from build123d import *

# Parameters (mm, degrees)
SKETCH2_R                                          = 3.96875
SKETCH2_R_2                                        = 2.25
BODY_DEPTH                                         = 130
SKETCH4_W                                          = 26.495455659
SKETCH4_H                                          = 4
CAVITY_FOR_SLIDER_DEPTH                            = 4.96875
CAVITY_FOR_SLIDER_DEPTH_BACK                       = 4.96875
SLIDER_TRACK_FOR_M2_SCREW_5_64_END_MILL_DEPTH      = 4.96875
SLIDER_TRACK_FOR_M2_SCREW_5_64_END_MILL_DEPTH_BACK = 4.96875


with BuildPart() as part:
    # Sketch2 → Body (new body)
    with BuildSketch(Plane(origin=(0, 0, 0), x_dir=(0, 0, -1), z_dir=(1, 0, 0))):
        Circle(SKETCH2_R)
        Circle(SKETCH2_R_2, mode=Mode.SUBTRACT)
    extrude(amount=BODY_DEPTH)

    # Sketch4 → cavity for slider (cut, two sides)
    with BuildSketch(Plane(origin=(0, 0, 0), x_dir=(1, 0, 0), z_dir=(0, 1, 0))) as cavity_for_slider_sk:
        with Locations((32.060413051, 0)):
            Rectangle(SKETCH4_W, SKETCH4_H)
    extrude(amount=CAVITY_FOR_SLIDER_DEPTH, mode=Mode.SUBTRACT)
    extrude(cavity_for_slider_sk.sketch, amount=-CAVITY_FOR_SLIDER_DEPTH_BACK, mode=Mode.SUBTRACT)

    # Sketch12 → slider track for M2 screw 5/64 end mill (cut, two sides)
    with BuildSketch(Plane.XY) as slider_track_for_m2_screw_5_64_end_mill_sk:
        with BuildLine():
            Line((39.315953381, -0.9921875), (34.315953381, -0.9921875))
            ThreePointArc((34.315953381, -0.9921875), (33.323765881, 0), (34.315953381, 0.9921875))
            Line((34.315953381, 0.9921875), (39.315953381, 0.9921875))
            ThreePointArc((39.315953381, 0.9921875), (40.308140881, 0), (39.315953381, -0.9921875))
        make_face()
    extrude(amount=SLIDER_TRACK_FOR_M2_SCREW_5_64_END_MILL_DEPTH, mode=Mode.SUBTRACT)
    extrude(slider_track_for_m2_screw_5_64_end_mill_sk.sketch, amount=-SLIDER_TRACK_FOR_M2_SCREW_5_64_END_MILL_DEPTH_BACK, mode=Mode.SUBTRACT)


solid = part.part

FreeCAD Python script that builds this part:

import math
import FreeCAD as App
import Part
import Sketcher


def add_polygon(sketch, points):
    """Adds a closed chain of lines whose ends are joined by coincident constraints."""
    first, n = sketch.GeometryCount, len(points)
    for a, b in zip(points, points[1:] + points[:1]):
        sketch.addGeometry(Part.LineSegment(App.Vector(*a, 0), App.Vector(*b, 0)), False)
    for i in range(n):
        sketch.addConstraint(Sketcher.Constraint("Coincident", first + i, 2, first + (i + 1) % n, 1))

doc = App.newDocument("Part")
params = doc.addObject("Spreadsheet::Sheet", "Params")
for row, (alias, value) in enumerate([
    ("sketch1_diameter", "4.5 mm"),
    ("pad1_length", "130 mm"),
    ("sketch2_height", "4 mm"),
    ("sketch3_width", "5 mm"),
], start=1):
    params.set(f"A{row}", alias)
    params.set(f"B{row}", "=" + value)
    params.setAlias(f"B{row}", alias)

body = doc.addObject("PartDesign::Body", "Body")

# Sketch on YZ plane
sketch1 = body.newObject("Sketcher::SketchObject", "Sketch")
sketch1.AttachmentSupport = (doc.getObject("YZ_Plane"), [""])
sketch1.MapMode = "FlatFace"
sketch1.addGeometry([
    Part.Circle(App.Vector(0, 0, 0), App.Vector(0, 0, 1), 4),
    Part.Circle(App.Vector(0, 0, 0), App.Vector(0, 0, 1), 2.2),
], False)
sketch1.addConstraint([
    Sketcher.Constraint("Coincident", 0, 3, -1, 1),
    Sketcher.Constraint("Coincident", 1, 3, -1, 1),
    Sketcher.Constraint("Diameter", 1, 4.5),
    Sketcher.Constraint("Diameter", 0, 7.9375),
])
sketch1.setExpression("Constraints[2]", "Params.sketch1_diameter")
pad1 = body.newObject("PartDesign::Pad", "Pad")
pad1.Profile = sketch1
pad1.setExpression("Length", "Params.pad1_length")

# Sketch on XZ plane
sketch2 = body.newObject("Sketcher::SketchObject", "Sketch001")
sketch2.AttachmentSupport = (doc.getObject("XZ_Plane"), [""])
sketch2.MapMode = "FlatFace"
add_polygon(sketch2, [(18.8, -2), (18.8, 2), (45.3, 2), (45.3, -2)])  # lines 0-3
sketch2.addConstraint([
    Sketcher.Constraint("Vertical", 0),
    Sketcher.Constraint("Horizontal", 1),
    Sketcher.Constraint("Vertical", 2),
    Sketcher.Constraint("Horizontal", 3),
    Sketcher.Constraint("DistanceY", 0, 1, 0, 2, 4.0),
    Sketcher.Constraint("DistanceY", -1, 1, 0, 2, 2.0),
    Sketcher.Constraint("DistanceX", 1, 1, 1, 2, 26.495456),
    Sketcher.Constraint("DistanceX", -1, 1, 1, 2, 45.308141),
])
sketch2.setExpression("Constraints[8]", "Params.sketch2_height")
pocket1 = body.newObject("PartDesign::Pocket", "Pocket")
pocket1.Profile = sketch2
pocket1.Type = "ThroughAll"
pocket1.Midplane = True

# Sketch on XY plane
sketch3 = body.newObject("Sketcher::SketchObject", "Sketch002")
sketch3.AttachmentSupport = (doc.getObject("XY_Plane"), [""])
sketch3.MapMode = "FlatFace"
sketch3.addGeometry([
    Part.LineSegment(App.Vector(34.3, -1, 0), App.Vector(39.3, -1, 0)),
    Part.ArcOfCircle(Part.Circle(App.Vector(39.3, 0, 0), App.Vector(0, 0, 1), 1), math.radians(-90), math.radians(90)),
    Part.LineSegment(App.Vector(39.3, 1, 0), App.Vector(34.3, 1, 0)),
    Part.ArcOfCircle(Part.Circle(App.Vector(34.3, 0, 0), App.Vector(0, 0, 1), 1), math.radians(90), math.radians(270)),
], False)
sketch3.addConstraint([
    Sketcher.Constraint("Tangent", 0, 2, 1, 1),
    Sketcher.Constraint("Tangent", 1, 2, 2, 1),
    Sketcher.Constraint("Tangent", 2, 2, 3, 1),
    Sketcher.Constraint("Tangent", 3, 2, 0, 1),
    Sketcher.Constraint("Horizontal", 0),
    Sketcher.Constraint("Horizontal", 2),
    Sketcher.Constraint("PointOnObject", 1, 3, -1),
    Sketcher.Constraint("DistanceX", 0, 1, 0, 2, 5.0),
    Sketcher.Constraint("Radius", 1, 0.992188),
    Sketcher.Constraint("DistanceX", -1, 1, 1, 3, 39.315953),
])
sketch3.setExpression("Constraints[7]", "Params.sketch3_width")
pocket2 = body.newObject("PartDesign::Pocket", "Pocket001")
pocket2.Profile = sketch3
pocket2.Type = "ThroughAll"
pocket2.Midplane = True

doc.recompute()
